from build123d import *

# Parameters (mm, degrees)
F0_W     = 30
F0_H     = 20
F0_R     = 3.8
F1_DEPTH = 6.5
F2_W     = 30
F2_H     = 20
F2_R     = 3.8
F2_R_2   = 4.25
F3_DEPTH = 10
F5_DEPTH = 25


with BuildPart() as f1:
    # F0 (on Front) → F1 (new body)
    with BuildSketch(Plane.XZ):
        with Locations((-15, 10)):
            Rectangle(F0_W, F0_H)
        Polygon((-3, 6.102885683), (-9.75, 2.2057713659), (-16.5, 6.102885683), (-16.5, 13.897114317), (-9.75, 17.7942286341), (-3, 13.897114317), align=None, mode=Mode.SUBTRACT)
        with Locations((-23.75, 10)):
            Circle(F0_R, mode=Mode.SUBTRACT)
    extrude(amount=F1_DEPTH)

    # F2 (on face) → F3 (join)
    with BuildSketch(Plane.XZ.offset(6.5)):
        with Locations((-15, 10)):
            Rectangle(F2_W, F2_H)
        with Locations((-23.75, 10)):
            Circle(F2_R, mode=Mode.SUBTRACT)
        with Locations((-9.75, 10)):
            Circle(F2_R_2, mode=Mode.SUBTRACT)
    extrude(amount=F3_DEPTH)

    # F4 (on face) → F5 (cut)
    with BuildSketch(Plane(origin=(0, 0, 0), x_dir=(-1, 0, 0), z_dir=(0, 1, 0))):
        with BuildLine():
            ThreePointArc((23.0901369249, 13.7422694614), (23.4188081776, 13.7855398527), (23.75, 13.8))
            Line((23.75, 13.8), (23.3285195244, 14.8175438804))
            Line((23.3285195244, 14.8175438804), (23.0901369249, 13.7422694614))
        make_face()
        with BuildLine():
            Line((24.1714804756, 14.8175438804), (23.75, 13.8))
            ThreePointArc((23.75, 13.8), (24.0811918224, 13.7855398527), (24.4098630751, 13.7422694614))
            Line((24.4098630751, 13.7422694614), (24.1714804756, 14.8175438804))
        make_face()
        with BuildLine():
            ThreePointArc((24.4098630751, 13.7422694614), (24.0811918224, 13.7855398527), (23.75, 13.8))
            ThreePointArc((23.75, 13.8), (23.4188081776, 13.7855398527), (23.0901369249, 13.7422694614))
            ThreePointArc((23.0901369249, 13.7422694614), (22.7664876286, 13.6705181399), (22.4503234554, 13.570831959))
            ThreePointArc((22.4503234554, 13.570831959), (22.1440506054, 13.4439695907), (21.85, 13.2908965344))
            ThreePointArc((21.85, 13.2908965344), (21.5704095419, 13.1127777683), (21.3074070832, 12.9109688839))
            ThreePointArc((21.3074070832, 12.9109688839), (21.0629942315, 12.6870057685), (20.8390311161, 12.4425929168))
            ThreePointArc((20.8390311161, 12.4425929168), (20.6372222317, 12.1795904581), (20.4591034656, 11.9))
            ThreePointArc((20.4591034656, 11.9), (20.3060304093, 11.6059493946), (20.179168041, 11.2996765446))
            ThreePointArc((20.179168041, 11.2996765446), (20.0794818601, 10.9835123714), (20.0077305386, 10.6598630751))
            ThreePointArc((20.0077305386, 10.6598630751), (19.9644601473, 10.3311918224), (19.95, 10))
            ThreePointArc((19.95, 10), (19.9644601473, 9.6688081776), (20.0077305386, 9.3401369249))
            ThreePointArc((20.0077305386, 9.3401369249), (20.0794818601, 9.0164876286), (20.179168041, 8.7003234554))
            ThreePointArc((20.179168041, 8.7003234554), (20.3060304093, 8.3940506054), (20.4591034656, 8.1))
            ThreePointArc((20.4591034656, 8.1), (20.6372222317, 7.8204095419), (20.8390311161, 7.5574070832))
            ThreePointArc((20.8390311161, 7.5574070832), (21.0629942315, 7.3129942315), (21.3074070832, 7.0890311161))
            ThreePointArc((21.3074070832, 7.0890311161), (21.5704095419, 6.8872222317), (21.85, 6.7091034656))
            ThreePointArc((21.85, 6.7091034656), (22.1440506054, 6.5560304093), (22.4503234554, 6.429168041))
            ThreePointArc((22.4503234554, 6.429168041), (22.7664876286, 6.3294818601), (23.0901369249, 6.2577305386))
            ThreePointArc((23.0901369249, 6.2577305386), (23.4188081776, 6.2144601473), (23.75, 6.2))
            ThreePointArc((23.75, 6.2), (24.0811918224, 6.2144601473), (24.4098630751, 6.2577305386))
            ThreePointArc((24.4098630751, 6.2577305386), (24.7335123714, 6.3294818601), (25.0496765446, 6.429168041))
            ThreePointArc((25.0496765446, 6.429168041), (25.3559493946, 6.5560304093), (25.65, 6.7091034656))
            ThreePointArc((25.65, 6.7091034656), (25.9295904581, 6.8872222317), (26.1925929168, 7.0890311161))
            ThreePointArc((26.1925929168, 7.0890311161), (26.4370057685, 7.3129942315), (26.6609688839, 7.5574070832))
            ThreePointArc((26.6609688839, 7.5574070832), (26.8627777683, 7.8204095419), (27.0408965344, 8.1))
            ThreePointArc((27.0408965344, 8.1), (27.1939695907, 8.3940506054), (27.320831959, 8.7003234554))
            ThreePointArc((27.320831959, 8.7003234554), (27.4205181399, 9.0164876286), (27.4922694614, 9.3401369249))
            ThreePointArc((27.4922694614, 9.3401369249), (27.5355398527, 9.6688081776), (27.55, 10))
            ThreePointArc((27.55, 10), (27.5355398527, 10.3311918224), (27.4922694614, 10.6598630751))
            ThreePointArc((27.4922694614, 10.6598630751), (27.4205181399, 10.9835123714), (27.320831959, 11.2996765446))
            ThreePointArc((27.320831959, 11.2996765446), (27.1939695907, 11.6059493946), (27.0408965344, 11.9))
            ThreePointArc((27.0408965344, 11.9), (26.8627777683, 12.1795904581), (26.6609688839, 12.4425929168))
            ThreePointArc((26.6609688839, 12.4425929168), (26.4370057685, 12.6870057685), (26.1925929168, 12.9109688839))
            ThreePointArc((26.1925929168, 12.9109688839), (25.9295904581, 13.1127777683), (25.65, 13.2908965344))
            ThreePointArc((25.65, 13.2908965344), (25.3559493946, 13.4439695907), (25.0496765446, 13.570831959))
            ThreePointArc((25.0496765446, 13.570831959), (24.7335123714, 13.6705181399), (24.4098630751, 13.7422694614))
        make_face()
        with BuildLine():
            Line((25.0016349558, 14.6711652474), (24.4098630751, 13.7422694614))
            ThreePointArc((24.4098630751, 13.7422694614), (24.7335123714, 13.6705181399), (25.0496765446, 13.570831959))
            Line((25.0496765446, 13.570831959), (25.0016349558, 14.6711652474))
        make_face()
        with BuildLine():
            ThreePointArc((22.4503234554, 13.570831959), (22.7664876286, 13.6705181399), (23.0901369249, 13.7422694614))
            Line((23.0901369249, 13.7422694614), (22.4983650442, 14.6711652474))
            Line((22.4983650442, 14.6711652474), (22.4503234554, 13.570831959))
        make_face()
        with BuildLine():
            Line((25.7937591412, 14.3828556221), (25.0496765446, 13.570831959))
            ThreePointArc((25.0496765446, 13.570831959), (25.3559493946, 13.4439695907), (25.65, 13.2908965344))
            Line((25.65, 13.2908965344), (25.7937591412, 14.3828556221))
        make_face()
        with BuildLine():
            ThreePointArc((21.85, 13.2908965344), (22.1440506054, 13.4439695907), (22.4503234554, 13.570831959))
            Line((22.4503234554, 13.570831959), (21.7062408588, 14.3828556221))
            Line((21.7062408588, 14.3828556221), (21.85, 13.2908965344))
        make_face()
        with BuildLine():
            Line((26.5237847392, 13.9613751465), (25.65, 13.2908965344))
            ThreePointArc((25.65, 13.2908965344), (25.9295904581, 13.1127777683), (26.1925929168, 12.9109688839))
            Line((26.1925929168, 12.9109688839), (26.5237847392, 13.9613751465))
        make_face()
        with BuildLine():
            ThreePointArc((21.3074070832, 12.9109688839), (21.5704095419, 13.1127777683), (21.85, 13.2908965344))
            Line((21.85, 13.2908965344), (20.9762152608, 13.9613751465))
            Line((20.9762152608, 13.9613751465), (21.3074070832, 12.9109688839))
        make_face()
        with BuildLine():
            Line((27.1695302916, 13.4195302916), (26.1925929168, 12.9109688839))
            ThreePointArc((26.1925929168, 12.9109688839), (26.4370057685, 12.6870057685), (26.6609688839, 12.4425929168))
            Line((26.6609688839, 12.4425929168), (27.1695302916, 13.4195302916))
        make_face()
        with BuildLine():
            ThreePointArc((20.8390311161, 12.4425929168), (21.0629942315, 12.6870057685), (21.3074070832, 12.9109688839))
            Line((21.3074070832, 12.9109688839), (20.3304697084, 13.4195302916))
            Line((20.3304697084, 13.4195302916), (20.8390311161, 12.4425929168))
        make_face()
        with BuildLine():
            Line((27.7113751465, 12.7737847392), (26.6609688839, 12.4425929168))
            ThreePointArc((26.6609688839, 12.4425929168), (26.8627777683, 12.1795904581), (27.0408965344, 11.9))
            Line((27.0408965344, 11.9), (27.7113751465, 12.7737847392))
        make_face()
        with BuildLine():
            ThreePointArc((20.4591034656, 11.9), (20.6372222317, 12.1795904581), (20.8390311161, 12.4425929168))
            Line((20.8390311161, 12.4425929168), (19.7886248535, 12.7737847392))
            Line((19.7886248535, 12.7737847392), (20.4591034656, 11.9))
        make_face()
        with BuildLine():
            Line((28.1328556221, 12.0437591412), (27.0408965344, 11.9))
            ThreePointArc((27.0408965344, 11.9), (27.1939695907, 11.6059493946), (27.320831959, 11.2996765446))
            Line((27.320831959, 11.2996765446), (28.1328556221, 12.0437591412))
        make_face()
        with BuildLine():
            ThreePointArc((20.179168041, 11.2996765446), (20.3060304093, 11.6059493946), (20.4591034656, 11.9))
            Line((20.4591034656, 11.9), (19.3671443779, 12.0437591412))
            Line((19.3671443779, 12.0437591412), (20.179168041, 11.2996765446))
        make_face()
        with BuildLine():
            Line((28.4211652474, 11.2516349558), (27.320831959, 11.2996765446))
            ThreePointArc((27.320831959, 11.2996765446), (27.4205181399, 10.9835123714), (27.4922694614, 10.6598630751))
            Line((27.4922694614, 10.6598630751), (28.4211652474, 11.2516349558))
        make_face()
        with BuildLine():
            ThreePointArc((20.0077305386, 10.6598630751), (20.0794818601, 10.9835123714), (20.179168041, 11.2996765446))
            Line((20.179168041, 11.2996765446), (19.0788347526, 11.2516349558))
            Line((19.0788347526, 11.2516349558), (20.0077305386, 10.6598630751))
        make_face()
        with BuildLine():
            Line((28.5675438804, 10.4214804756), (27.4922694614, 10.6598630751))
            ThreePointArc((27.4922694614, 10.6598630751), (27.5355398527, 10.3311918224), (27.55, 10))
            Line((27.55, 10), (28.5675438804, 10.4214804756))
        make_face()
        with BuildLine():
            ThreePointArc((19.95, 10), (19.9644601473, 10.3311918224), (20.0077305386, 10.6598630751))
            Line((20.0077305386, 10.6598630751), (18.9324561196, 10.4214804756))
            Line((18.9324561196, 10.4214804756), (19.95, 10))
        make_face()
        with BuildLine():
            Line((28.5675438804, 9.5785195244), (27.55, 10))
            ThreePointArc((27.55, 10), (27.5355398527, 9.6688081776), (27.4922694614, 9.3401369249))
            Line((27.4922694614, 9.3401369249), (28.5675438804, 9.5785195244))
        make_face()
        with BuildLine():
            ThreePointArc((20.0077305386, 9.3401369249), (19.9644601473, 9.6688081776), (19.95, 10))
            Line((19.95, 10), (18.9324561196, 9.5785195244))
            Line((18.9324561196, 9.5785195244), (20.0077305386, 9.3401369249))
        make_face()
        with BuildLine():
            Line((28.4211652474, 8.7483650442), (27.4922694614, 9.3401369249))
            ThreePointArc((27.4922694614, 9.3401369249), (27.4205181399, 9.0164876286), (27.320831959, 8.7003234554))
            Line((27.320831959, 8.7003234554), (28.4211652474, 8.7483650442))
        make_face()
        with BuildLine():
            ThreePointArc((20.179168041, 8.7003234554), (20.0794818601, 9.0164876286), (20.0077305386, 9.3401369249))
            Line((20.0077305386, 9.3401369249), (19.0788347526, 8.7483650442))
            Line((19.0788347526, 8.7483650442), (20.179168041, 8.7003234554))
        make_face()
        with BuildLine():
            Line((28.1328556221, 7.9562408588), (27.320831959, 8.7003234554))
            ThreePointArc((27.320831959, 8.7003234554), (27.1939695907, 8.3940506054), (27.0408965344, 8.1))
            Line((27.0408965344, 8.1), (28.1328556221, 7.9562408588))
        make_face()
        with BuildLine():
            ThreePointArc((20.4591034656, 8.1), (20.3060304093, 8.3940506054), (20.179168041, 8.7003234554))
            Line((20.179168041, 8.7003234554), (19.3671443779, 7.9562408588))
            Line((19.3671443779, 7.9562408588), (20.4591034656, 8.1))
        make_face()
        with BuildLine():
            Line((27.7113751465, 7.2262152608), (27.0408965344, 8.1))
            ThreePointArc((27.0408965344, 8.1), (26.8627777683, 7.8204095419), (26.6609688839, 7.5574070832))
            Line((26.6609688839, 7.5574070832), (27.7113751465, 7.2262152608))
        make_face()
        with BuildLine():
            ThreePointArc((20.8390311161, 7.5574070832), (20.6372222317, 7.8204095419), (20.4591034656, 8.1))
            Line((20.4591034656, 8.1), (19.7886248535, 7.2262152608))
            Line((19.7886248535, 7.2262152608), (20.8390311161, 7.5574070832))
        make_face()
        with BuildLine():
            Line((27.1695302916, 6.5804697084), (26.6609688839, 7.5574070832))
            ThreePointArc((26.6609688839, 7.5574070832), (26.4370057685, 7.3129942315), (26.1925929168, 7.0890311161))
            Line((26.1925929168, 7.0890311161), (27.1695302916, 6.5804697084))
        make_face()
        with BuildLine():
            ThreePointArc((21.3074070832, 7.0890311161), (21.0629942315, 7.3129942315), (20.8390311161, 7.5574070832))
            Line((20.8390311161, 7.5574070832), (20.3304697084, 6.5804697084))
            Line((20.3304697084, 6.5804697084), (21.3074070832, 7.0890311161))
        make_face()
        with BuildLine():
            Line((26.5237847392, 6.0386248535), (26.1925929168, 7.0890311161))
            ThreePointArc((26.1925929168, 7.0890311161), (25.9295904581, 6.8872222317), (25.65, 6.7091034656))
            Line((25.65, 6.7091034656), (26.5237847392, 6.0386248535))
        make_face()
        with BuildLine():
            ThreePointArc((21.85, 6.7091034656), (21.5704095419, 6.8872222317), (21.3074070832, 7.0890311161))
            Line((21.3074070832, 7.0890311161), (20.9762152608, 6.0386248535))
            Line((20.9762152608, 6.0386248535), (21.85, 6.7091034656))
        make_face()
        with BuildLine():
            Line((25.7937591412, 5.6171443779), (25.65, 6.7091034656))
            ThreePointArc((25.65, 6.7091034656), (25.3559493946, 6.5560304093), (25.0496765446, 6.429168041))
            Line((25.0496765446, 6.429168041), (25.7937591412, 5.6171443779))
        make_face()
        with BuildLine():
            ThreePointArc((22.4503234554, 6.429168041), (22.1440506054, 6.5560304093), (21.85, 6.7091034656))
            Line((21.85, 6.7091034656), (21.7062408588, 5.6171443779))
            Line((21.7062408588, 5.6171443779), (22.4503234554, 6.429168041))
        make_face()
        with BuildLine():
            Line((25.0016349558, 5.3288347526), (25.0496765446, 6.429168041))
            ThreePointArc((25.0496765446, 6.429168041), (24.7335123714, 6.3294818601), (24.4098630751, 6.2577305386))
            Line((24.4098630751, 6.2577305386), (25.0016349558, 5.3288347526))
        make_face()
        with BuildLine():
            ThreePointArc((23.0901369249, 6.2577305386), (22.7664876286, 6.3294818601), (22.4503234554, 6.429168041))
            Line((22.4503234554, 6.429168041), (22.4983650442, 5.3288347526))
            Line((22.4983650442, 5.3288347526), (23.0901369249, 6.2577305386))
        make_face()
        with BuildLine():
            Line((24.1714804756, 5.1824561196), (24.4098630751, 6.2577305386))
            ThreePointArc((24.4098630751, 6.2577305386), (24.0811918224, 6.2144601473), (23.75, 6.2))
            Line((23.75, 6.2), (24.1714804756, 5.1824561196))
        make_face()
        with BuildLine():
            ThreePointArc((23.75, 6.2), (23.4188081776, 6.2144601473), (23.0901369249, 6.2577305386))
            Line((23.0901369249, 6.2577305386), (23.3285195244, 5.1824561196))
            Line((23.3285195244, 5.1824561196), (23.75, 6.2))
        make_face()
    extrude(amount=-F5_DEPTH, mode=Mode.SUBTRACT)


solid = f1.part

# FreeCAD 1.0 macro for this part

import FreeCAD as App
import Part
import Sketcher
from FreeCAD import Vector
Q = App.Units.Quantity


def add_polygon(sketch, points):
    """Adds a closed chain of lines whose ends are joined by coincident constraints."""
    first, n = sketch.GeometryCount, len(points)
    for a, b in zip(points, points[1:] + points[:1]):
        sketch.addGeometry(Part.LineSegment(App.Vector(*a, 0), App.Vector(*b, 0)), False)
    for i in range(n):
        sketch.addConstraint(Sketcher.Constraint("Coincident", first + i, 2, first + (i + 1) % n, 1))

doc = App.newDocument("Part")
body = doc.addObject("PartDesign::Body", "Body")

# Sketch on XZ plane
sketch1 = body.newObject("Sketcher::SketchObject", "Sketch")
sketch1.AttachmentSupport = (doc.getObject("XZ_Plane"), [""])
sketch1.MapMode = "FlatFace"
add_polygon(sketch1, [(-30, 20), (-30, 0), (0, 0), (0, 20)])  # lines 0-3
sketch1.addGeometry(Part.Circle(Vector(-23.8, 10, 0), Vector(0, 0, 1), 3.8), False)  # 4
add_polygon(sketch1, [(-3, 13.9), (-3, 6.1), (-9.8, 2.2), (-16.5, 6.1), (-16.5, 13.9), (-9.8, 17.8)])  # lines 5-10
sketch1.addConstraint([
    Sketcher.Constraint("Vertical", 0),
    Sketcher.Constraint("Horizontal", 1),
    Sketcher.Constraint("Vertical", 2),
    Sketcher.Constraint("Horizontal", 3),
    Sketcher.Constraint("Vertical", 5),
    Sketcher.Constraint("Vertical", 8),
    Sketcher.Constraint("Coincident", 1, 2, -1, 1),
    Sketcher.Constraint("Parallel", 6, 9),
    Sketcher.Constraint("Parallel", 7, 10),
    Sketcher.Constraint("Horizontal", 5, 2, 7, 2),
    Sketcher.Constraint("Horizontal", 8, 2, 10, 2),
    Sketcher.Constraint("Vertical", 6, 2, 9, 2),
    Sketcher.Constraint("Diameter", 4, 7.6),
    Sketcher.Constraint("DistanceX", 1, 1, 1, 2, 30.0),
    Sketcher.Constraint("DistanceY", 0, 2, 0, 1, 20.0),
    Sketcher.Constraint("Angle", 6, Q("-150 deg")),
    Sketcher.Constraint("DistanceY", -1, 1, 4, 3, 10.0),
    Sketcher.Constraint("DistanceX", 5, 2, -1, 1, 3.0),
    Sketcher.Constraint("DistanceX", 4, 3, 6, 2, 14.0),
    Sketcher.Constraint("DistanceX", 7, 2, -1, 1, 16.5),
    Sketcher.Constraint("DistanceY", 5, 2, 5, 1, 7.794229),
    Sketcher.Constraint("DistanceY", -1, 1, 6, 2, 2.205771),
])
pad1 = body.newObject("PartDesign::Pad", "Pad")
pad1.Profile = sketch1
pad1.Length = 6.5

# Sketch on XZ plane
sketch2 = body.newObject("Sketcher::SketchObject", "Sketch001")
sketch2.AttachmentSupport = (doc.getObject("XZ_Plane"), [""])
sketch2.MapMode = "FlatFace"
sketch2.AttachmentOffset = App.Placement(Vector(0, 0, 6.5), App.Rotation())
add_polygon(sketch2, [(-30, 20), (-30, 0), (0, 0), (0, 20)])  # lines 0-3
sketch2.addGeometry(Part.Circle(Vector(-23.8, 10, 0), Vector(0, 0, 1), 3.8), False)  # 4
sketch2.addGeometry(Part.Circle(Vector(-9.8, 10, 0), Vector(0, 0, 1), 4.2), False)  # 5
sketch2.addConstraint([
    Sketcher.Constraint("Vertical", 0),
    Sketcher.Constraint("Horizontal", 1),
    Sketcher.Constraint("Vertical", 2),
    Sketcher.Constraint("Horizontal", 3),
    Sketcher.Constraint("Coincident", 1, 2, -1, 1),
    Sketcher.Constraint("Horizontal", 4, 3, 5, 3),
    Sketcher.Constraint("Diameter", 4, 7.6),
    Sketcher.Constraint("Diameter", 5, 8.5),
    Sketcher.Constraint("DistanceX", 1, 1, 1, 2, 30.0),
    Sketcher.Constraint("DistanceY", 0, 2, 0, 1, 20.0),
    Sketcher.Constraint("DistanceY", -1, 1, 4, 3, 10.0),
    Sketcher.Constraint("DistanceX", 4, 3, 5, 3, 14.0),
    Sketcher.Constraint("DistanceX", 4, 3, -1, 1, 23.75),
])
pad2 = body.newObject("PartDesign::Pad", "Pad001")
pad2.Profile = sketch2
pad2.Length = 10

# Sketch on XZ plane
sketch3 = body.newObject("Sketcher::SketchObject", "Sketch002")
sketch3.AttachmentSupport = (doc.getObject("XZ_Plane"), [""])
sketch3.MapMode = "FlatFace"
add_polygon(sketch3, [(-23.75, 13.8), (-23.32852, 14.817544), (-23.090137, 13.742269), (-22.498365, 14.671165), (-22.450323, 13.570832), (-21.706241, 14.382856), (-21.85, 13.290897), (-20.976215, 13.961375), (-21.307407, 12.910969), (-20.33047, 13.41953), (-20.839031, 12.442593), (-19.788625, 12.773785), (-20.459103, 11.9), (-19.367144, 12.043759), (-20.179168, 11.299677), (-19.078835, 11.251635), (-20.007731, 10.659863), (-18.932456, 10.42148), (-19.95, 10), (-18.932456, 9.57852), (-20.007731, 9.340137), (-19.078835, 8.748365), (-20.179168, 8.700323), (-19.367144, 7.956241), (-20.459103, 8.1), (-19.788625, 7.226215), (-20.839031, 7.557407), (-20.33047, 6.58047), (-21.307407, 7.089031), (-20.976215, 6.038625), (-21.85, 6.709103), (-21.706241, 5.617144), (-22.450323, 6.429168), (-22.498365, 5.328835), (-23.090137, 6.257731), (-23.32852, 5.182456), (-23.75, 6.2), (-24.17148, 5.182456), (-24.409863, 6.257731), (-25.001635, 5.328835), (-25.049677, 6.429168), (-25.793759, 5.617144), (-25.65, 6.709103), (-26.523785, 6.038625), (-26.192593, 7.089031), (-27.16953, 6.58047), (-26.660969, 7.557407), (-27.711375, 7.226215), (-27.040897, 8.1), (-28.132856, 7.956241), (-27.320832, 8.700323), (-28.421165, 8.748365), (-27.492269, 9.340137), (-28.567544, 9.57852), (-27.55, 10), (-28.567544, 10.42148), (-27.492269, 10.659863), (-28.421165, 11.251635), (-27.320832, 11.299677), (-28.132856, 12.043759), (-27.040897, 11.9), (-27.711375, 12.773785), (-26.660969, 12.442593), (-27.16953, 13.41953), (-26.192593, 12.910969), (-26.523785, 13.961375), (-25.65, 13.290897), (-25.793759, 14.382856), (-25.049677, 13.570832), (-25.001635, 14.671165), (-24.409863, 13.742269), (-24.17148, 14.817544)])  # lines 0-71
sketch3.addConstraint([
    Sketcher.Constraint("Perpendicular", 0, 18),
    Sketcher.Constraint("Perpendicular", 1, 19),
    Sketcher.Constraint("Perpendicular", 2, 20),
    Sketcher.Constraint("Perpendicular", 3, 21),
    Sketcher.Constraint("Perpendicular", 4, 22),
    Sketcher.Constraint("Perpendicular", 5, 23),
    Sketcher.Constraint("Perpendicular", 6, 24),
    Sketcher.Constraint("Perpendicular", 7, 25),
    Sketcher.Constraint("Perpendicular", 8, 26),
    Sketcher.Constraint("Perpendicular", 9, 27),
    Sketcher.Constraint("Perpendicular", 10, 28),
    Sketcher.Constraint("Perpendicular", 11, 29),
    Sketcher.Constraint("Perpendicular", 12, 30),
    Sketcher.Constraint("Perpendicular", 13, 31),
    Sketcher.Constraint("Perpendicular", 14, 32),
    Sketcher.Constraint("Perpendicular", 15, 33),
    Sketcher.Constraint("Perpendicular", 16, 34),
    Sketcher.Constraint("Perpendicular", 17, 35),
    Sketcher.Constraint("Perpendicular", 18, 36),
    Sketcher.Constraint("Perpendicular", 19, 37),
    Sketcher.Constraint("Perpendicular", 20, 38),
    Sketcher.Constraint("Perpendicular", 21, 39),
    Sketcher.Constraint("Perpendicular", 22, 40),
    Sketcher.Constraint("Perpendicular", 23, 41),
    Sketcher.Constraint("Perpendicular", 24, 42),
    Sketcher.Constraint("Perpendicular", 25, 43),
    Sketcher.Constraint("Perpendicular", 26, 44),
    Sketcher.Constraint("Perpendicular", 27, 45),
    Sketcher.Constraint("Perpendicular", 28, 46),
    Sketcher.Constraint("Perpendicular", 29, 47),
    Sketcher.Constraint("Perpendicular", 30, 48),
    Sketcher.Constraint("Perpendicular", 31, 49),
    Sketcher.Constraint("Perpendicular", 32, 50),
    Sketcher.Constraint("Perpendicular", 33, 51),
    Sketcher.Constraint("Perpendicular", 34, 52),
    Sketcher.Constraint("Perpendicular", 35, 53),
    Sketcher.Constraint("Perpendicular", 36, 54),
    Sketcher.Constraint("Perpendicular", 37, 55),
    Sketcher.Constraint("Perpendicular", 38, 56),
    Sketcher.Constraint("Perpendicular", 39, 57),
    Sketcher.Constraint("Perpendicular", 40, 58),
    Sketcher.Constraint("Perpendicular", 41, 59),
    Sketcher.Constraint("Perpendicular", 42, 60),
    Sketcher.Constraint("Perpendicular", 43, 61),
    Sketcher.Constraint("Perpendicular", 44, 62),
    Sketcher.Constraint("Perpendicular", 45, 63),
    Sketcher.Constraint("Perpendicular", 46, 64),
    Sketcher.Constraint("Perpendicular", 47, 65),
    Sketcher.Constraint("Perpendicular", 48, 66),
    Sketcher.Constraint("Perpendicular", 49, 67),
    Sketcher.Constraint("Perpendicular", 50, 68),
    Sketcher.Constraint("Perpendicular", 51, 69),
    Sketcher.Constraint("Perpendicular", 52, 70),
    Sketcher.Constraint("Perpendicular", 53, 71),
    Sketcher.Constraint("Horizontal", 34, 2, 36, 2),
    Sketcher.Constraint("Horizontal", 33, 2, 37, 2),
    Sketcher.Constraint("Horizontal", 32, 2, 38, 2),
    Sketcher.Constraint("Horizontal", 31, 2, 39, 2),
    Sketcher.Constraint("Horizontal", 30, 2, 40, 2),
    Sketcher.Constraint("Horizontal", 29, 2, 41, 2),
    Sketcher.Constraint("Horizontal", 28, 2, 42, 2),
    Sketcher.Constraint("Horizontal", 27, 2, 43, 2),
    Sketcher.Constraint("Horizontal", 26, 2, 44, 2),
    Sketcher.Constraint("Horizontal", 25, 2, 45, 2),
    Sketcher.Constraint("Horizontal", 24, 2, 46, 2),
    Sketcher.Constraint("Horizontal", 23, 2, 47, 2),
    Sketcher.Constraint("Horizontal", 22, 2, 48, 2),
    Sketcher.Constraint("Horizontal", 21, 2, 49, 2),
    Sketcher.Constraint("Horizontal", 20, 2, 50, 2),
    Sketcher.Constraint("Horizontal", 19, 2, 51, 2),
    Sketcher.Constraint("Horizontal", 18, 2, 52, 2),
    Sketcher.Constraint("Horizontal", 17, 2, 53, 2),
    Sketcher.Constraint("Horizontal", 16, 2, 54, 2),
    Sketcher.Constraint("Horizontal", 15, 2, 55, 2),
    Sketcher.Constraint("Horizontal", 14, 2, 56, 2),
    Sketcher.Constraint("Horizontal", 13, 2, 57, 2),
    Sketcher.Constraint("Horizontal", 12, 2, 58, 2),
    Sketcher.Constraint("Horizontal", 11, 2, 59, 2),
    Sketcher.Constraint("Horizontal", 10, 2, 60, 2),
    Sketcher.Constraint("Horizontal", 9, 2, 61, 2),
    Sketcher.Constraint("Horizontal", 8, 2, 62, 2),
    Sketcher.Constraint("Horizontal", 7, 2, 63, 2),
    Sketcher.Constraint("Horizontal", 6, 2, 64, 2),
    Sketcher.Constraint("Horizontal", 5, 2, 65, 2),
    Sketcher.Constraint("Horizontal", 4, 2, 66, 2),
    Sketcher.Constraint("Horizontal", 3, 2, 67, 2),
    Sketcher.Constraint("Horizontal", 2, 2, 68, 2),
    Sketcher.Constraint("Horizontal", 1, 2, 69, 2),
    Sketcher.Constraint("Horizontal", 0, 2, 70, 2),
    Sketcher.Constraint("Vertical", 16, 2, 18, 2),
    Sketcher.Constraint("Vertical", 15, 2, 19, 2),
    Sketcher.Constraint("Vertical", 14, 2, 20, 2),
    Sketcher.Constraint("Vertical", 13, 2, 21, 2),
    Sketcher.Constraint("Vertical", 12, 2, 22, 2),
    Sketcher.Constraint("Vertical", 11, 2, 23, 2),
    Sketcher.Constraint("Vertical", 10, 2, 24, 2),
    Sketcher.Constraint("Vertical", 9, 2, 25, 2),
    Sketcher.Constraint("Vertical", 8, 2, 26, 2),
    Sketcher.Constraint("Vertical", 7, 2, 27, 2),
    Sketcher.Constraint("Vertical", 6, 2, 28, 2),
    Sketcher.Constraint("Vertical", 5, 2, 29, 2),
    Sketcher.Constraint("Vertical", 4, 2, 30, 2),
    Sketcher.Constraint("Vertical", 3, 2, 31, 2),
    Sketcher.Constraint("Vertical", 2, 2, 32, 2),
    Sketcher.Constraint("Vertical", 1, 2, 33, 2),
    Sketcher.Constraint("Vertical", 0, 2, 34, 2),
    Sketcher.Constraint("Vertical", 52, 2, 54, 2),
    Sketcher.Constraint("Vertical", 51, 2, 55, 2),
    Sketcher.Constraint("Vertical", 50, 2, 56, 2),
    Sketcher.Constraint("Vertical", 49, 2, 57, 2),
    Sketcher.Constraint("Vertical", 48, 2, 58, 2),
    Sketcher.Constraint("Vertical", 47, 2, 59, 2),
    Sketcher.Constraint("Vertical", 46, 2, 60, 2),
    Sketcher.Constraint("Vertical", 45, 2, 61, 2),
    Sketcher.Constraint("Vertical", 44, 2, 62, 2),
    Sketcher.Constraint("Equal", 0, 1),
    Sketcher.Constraint("Equal", 1, 2),
    Sketcher.Constraint("Equal", 2, 3),
    Sketcher.Constraint("Equal", 3, 4),
    Sketcher.Constraint("Equal", 4, 5),
    Sketcher.Constraint("Equal", 5, 6),
    Sketcher.Constraint("Equal", 6, 7),
    Sketcher.Constraint("Equal", 7, 8),
    Sketcher.Constraint("Equal", 8, 9),
    Sketcher.Constraint("Equal", 9, 10),
    Sketcher.Constraint("Equal", 10, 11),
    Sketcher.Constraint("Equal", 11, 12),
    Sketcher.Constraint("Equal", 12, 13),
    Sketcher.Constraint("Equal", 13, 14),
    Sketcher.Constraint("Equal", 14, 15),
    Sketcher.Constraint("Equal", 15, 16),
    Sketcher.Constraint("Equal", 16, 17),
    Sketcher.Constraint("DistanceY", -1, 1, 17, 2, 10.0),
    Sketcher.Constraint("Angle", 0, Q("67.5 deg")),
    Sketcher.Constraint("Angle", 1, Q("-77.5 deg")),
    Sketcher.Constraint("Angle", 2, Q("57.5 deg")),
    Sketcher.Constraint("Angle", 3, Q("-87.5 deg")),
    Sketcher.Constraint("Angle", 4, Q("47.5 deg")),
    Sketcher.Constraint("Angle", 5, Q("-97.5 deg")),
    Sketcher.Constraint("Angle", 6, Q("37.5 deg")),
    Sketcher.Constraint("Angle", 7, Q("-107.5 deg")),
    Sketcher.Constraint("Angle", 8, Q("27.5 deg")),
    Sketcher.Constraint("DistanceY", -1, 1, 11, 2, 11.9),
    Sketcher.Constraint("DistanceX", 5, 2, -1, 1, 21.85),
])
pocket1 = body.newObject("PartDesign::Pocket", "Pocket")
pocket1.Profile = sketch3
pocket1.Length = 25
pocket1.Reversed = True

doc.recompute()
